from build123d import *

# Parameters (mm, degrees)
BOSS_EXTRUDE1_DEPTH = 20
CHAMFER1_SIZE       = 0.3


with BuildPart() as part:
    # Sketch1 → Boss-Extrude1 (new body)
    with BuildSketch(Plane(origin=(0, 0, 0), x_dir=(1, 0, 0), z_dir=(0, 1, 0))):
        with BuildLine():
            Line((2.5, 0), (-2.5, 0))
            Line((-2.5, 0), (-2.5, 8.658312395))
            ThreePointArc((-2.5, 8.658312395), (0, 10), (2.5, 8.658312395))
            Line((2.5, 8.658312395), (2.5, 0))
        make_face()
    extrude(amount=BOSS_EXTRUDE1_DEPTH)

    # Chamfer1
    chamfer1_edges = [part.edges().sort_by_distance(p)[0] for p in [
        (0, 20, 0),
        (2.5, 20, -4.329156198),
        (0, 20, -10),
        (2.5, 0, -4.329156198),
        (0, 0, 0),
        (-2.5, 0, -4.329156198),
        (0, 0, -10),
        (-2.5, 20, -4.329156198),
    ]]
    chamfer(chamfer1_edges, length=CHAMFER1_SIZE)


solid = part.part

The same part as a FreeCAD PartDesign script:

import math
import FreeCAD as App
import Part
import Sketcher

V = App.Vector


def edges_at(feature, points):
    """Names of the edges that pass closest to the given points."""
    edges = feature.Shape.Edges
    near = lambda p: min(range(len(edges)), key=lambda i: edges[i].distToShape(Part.Vertex(*p))[0])
    return sorted({f"Edge{near(p) + 1}" for p in points})

doc = App.newDocument("Part")
body = doc.addObject("PartDesign::Body", "Body")

sketch1 = doc.addObject("Sketcher::SketchObject", "Sketch")
body.addObject(sketch1)
sketch1.AttachmentSupport = (doc.XZ_Plane, [""])
sketch1.MapMode = "FlatFace"
sketch1.addGeometry([
    Part.LineSegment(V(-2.5, 0, 0), V(2.5, 0, 0)),
    Part.LineSegment(V(2.5, 0, 0), V(2.5, -8.7, 0)),
    Part.ArcOfCircle(Part.Circle(V(0, -7, 0), V(0, 0, 1), 3), math.radians(-146), math.radians(-34)),
    Part.LineSegment(V(-2.5, -8.7, 0), V(-2.5, 0, 0)),
], False)
sketch1.addConstraint([
    Sketcher.Constraint("Coincident", 0, 2, 1, 1),
    Sketcher.Constraint("Coincident", 1, 2, 2, 2),
    Sketcher.Constraint("Coincident", 2, 1, 3, 1),
    Sketcher.Constraint("Coincident", 3, 2, 0, 1),
    Sketcher.Constraint("Horizontal", 0),
    Sketcher.Constraint("Vertical", 1),
    Sketcher.Constraint("Vertical", 3),
    Sketcher.Constraint("Symmetric", 0, 2, 3, 2, -1, 1),
    Sketcher.Constraint("PointOnObject", 2, 3, -2),
    Sketcher.Constraint("Radius", 2, 3.0),
    Sketcher.Constraint("DistanceX", 0, 1, 0, 2, 5.0),
    Sketcher.Constraint("DistanceY", 2, 3, -1, 1, 7.0),
])
pad1 = doc.addObject("PartDesign::Pad", "Pad")
body.addObject(pad1)
pad1.Profile = sketch1
pad1.Length = 20
pad1.Reversed = True
doc.recompute()

chamfer = doc.addObject("PartDesign::Chamfer", "Chamfer")
body.addObject(chamfer)
chamfer.Base = (pad1, edges_at(pad1, [
    (0, 20, 0),
    (2.5, 20, -4.329),
    (0, 20, -10),
    (2.5, 0, -4.329),
    (0, 0, 0),
    (-2.5, 0, -4.329),
    (0, 0, -10),
    (-2.5, 20, -4.329),
]))
chamfer.Size = 0.3

doc.recompute()
